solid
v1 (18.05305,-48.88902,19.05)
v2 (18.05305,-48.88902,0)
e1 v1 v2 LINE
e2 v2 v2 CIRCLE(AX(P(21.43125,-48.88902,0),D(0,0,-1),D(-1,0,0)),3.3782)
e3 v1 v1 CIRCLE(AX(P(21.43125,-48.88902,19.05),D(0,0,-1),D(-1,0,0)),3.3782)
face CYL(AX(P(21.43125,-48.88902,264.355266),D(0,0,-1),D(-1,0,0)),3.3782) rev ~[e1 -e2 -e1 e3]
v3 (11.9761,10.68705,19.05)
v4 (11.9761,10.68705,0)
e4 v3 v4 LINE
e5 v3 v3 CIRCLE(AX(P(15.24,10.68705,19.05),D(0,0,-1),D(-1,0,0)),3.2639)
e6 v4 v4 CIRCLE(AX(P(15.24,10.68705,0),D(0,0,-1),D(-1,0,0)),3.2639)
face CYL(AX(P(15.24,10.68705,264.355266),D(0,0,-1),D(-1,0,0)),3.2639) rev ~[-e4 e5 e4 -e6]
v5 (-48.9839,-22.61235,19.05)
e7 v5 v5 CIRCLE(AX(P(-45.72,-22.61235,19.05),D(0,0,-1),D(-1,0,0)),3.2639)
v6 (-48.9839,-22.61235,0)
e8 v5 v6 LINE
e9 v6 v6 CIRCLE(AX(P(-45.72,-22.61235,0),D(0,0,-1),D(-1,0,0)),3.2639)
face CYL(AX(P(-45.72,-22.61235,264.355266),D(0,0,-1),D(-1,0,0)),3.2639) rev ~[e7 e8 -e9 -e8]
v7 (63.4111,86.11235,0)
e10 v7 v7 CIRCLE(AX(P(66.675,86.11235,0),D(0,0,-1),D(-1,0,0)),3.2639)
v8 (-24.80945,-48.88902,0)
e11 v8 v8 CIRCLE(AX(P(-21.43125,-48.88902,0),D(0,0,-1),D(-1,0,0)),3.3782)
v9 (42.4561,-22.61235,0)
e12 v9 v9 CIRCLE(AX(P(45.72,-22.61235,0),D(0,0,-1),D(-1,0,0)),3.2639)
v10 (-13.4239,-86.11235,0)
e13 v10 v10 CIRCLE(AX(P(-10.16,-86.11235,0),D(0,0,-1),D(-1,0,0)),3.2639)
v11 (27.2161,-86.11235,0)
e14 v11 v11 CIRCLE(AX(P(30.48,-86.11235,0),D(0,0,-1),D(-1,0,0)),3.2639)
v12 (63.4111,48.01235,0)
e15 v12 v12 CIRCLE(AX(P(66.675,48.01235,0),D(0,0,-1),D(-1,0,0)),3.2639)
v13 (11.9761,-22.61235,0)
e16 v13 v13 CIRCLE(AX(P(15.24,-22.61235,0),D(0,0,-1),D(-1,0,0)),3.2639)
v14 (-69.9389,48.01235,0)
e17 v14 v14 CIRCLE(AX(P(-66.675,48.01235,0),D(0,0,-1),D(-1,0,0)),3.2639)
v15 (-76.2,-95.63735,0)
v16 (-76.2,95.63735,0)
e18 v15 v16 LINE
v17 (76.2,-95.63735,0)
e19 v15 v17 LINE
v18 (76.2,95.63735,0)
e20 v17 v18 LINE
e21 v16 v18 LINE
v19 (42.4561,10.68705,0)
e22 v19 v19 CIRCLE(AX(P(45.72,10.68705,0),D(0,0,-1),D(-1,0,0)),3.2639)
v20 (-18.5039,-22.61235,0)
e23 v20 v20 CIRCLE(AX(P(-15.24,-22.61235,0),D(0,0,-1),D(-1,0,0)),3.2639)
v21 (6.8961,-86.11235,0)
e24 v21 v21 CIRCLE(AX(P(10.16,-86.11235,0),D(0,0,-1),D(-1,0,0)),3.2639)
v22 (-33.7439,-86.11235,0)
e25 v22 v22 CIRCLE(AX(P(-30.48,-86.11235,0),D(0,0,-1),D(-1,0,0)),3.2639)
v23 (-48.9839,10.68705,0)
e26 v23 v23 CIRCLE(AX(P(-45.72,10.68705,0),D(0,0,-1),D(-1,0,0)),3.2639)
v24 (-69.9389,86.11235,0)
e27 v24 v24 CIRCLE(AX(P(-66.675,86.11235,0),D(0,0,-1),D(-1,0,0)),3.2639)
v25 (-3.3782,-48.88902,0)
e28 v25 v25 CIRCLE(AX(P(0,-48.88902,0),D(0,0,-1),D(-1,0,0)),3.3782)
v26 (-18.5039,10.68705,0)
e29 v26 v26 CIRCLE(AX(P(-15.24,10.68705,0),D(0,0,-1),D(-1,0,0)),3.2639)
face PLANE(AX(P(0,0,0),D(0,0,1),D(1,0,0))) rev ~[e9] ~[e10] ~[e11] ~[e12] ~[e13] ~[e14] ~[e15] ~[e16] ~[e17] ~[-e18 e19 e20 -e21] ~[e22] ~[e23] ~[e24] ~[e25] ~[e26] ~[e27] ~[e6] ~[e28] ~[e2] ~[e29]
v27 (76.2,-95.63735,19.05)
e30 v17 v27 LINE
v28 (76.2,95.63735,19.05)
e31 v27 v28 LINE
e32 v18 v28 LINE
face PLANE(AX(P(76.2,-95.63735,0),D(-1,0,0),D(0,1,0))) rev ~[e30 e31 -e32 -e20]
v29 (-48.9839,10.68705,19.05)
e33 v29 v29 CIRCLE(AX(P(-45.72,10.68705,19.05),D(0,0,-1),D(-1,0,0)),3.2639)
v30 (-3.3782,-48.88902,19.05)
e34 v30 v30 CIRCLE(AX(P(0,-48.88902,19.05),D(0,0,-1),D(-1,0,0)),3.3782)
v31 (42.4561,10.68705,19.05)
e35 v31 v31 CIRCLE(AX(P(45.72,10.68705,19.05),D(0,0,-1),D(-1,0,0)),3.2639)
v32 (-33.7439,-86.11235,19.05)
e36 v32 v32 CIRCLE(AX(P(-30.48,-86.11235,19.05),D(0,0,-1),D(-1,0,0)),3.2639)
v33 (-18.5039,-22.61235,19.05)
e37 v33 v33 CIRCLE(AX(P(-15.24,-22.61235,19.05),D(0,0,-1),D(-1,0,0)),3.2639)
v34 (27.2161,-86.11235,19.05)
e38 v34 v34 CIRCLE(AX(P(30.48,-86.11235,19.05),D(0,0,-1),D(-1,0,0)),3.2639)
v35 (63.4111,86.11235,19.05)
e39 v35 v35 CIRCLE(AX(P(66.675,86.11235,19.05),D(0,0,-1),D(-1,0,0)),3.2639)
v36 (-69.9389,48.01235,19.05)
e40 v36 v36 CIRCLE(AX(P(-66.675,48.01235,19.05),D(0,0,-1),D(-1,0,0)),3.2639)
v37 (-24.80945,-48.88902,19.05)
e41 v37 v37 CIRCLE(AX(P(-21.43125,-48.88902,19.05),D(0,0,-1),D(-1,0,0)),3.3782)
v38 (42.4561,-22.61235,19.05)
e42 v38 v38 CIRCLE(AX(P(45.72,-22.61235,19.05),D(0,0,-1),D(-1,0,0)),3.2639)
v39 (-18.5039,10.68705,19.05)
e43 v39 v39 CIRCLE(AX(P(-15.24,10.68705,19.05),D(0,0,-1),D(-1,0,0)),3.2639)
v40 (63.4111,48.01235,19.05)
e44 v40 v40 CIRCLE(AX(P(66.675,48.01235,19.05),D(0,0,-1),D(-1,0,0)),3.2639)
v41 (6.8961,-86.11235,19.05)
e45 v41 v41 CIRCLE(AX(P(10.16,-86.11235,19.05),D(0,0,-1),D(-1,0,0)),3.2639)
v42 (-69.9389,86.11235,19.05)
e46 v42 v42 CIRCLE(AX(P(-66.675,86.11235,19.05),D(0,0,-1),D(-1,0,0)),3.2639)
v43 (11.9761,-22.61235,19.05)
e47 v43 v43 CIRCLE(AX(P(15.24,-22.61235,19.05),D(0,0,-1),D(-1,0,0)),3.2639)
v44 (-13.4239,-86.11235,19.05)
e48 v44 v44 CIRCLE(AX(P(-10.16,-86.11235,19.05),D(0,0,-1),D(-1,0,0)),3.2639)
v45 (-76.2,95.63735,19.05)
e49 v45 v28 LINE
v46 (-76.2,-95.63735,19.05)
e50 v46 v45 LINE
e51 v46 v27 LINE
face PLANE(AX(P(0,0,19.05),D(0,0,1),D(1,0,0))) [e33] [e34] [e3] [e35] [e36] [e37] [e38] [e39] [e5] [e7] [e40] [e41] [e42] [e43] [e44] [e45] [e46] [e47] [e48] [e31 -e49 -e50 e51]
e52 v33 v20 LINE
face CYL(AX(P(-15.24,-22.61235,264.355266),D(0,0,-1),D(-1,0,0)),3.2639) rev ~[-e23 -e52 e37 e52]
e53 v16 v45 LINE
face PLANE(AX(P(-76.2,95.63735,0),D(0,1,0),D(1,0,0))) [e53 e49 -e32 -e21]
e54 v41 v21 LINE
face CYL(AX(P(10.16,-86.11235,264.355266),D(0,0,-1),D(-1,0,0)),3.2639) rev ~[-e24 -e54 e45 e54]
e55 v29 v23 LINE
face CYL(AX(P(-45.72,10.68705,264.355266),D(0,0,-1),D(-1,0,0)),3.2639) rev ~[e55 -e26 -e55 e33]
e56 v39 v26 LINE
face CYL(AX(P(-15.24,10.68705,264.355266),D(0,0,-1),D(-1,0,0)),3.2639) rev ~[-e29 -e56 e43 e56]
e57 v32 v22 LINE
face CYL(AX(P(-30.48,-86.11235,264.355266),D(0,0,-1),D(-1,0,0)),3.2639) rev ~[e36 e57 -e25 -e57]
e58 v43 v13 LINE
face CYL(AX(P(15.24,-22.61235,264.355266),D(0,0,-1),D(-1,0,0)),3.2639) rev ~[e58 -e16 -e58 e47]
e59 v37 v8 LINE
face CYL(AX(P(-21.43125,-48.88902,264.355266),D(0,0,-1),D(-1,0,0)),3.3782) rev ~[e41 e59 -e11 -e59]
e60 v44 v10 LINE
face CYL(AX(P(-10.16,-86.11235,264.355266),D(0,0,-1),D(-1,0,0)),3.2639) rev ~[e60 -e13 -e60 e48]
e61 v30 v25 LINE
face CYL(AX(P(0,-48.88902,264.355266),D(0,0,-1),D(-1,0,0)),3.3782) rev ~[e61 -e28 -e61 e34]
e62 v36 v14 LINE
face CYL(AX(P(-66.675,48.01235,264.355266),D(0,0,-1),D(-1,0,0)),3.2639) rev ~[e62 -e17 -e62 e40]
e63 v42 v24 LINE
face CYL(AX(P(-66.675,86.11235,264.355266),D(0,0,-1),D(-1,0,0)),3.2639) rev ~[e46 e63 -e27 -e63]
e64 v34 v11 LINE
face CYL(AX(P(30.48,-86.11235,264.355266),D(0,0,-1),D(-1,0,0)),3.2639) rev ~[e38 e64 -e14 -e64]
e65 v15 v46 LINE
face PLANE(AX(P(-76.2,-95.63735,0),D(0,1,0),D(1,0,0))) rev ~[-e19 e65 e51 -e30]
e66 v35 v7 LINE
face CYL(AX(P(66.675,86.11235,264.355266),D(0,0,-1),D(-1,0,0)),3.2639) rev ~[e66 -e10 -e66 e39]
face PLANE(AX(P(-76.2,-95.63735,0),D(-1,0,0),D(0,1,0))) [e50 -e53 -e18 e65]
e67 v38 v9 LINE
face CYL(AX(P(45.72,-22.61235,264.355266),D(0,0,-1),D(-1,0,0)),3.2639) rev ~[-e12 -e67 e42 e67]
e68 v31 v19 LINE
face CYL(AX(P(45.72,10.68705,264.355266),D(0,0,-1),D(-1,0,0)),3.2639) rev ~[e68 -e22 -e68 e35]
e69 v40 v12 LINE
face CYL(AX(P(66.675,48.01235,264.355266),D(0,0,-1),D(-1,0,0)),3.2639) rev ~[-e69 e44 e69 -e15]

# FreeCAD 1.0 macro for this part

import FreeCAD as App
import Part
import Sketcher
from FreeCAD import Vector
Q = App.Units.Quantity

doc = App.newDocument("Part")
body = doc.addObject("PartDesign::Body", "Body")

# Sketch on XY plane
sketch1 = body.newObject("Sketcher::SketchObject", "Sketch")
sketch1.AttachmentSupport = (doc.getObject("XY_Plane"), [""])
sketch1.MapMode = "FlatFace"
sketch1.addGeometry([
    Part.LineSegment(Vector(-76, 96, 0), Vector(-76, -96, 0)),
    Part.LineSegment(Vector(-76, -96, 0), Vector(76, -96, 0)),
    Part.LineSegment(Vector(76, -96, 0), Vector(76, 96, 0)),
    Part.LineSegment(Vector(76, 96, 0), Vector(-76, 96, 0)),
], False)
sketch1.addConstraint([
    Sketcher.Constraint("Coincident", 0, 2, 1, 1),
    Sketcher.Constraint("Coincident", 1, 2, 2, 1),
    Sketcher.Constraint("Coincident", 2, 2, 3, 1),
    Sketcher.Constraint("Coincident", 3, 2, 0, 1),
    Sketcher.Constraint("Vertical", 0),
    Sketcher.Constraint("Horizontal", 1),
    Sketcher.Constraint("Vertical", 2),
    Sketcher.Constraint("Horizontal", 3),
    Sketcher.Constraint("Symmetric", 0, 2, 2, 2, -1, 1),
    Sketcher.Constraint("DistanceX", 1, 1, 1, 2, Q("6 in")),
    Sketcher.Constraint("DistanceY", 0, 2, 0, 1, Q("7.5305 in")),
])
pad1 = body.newObject("PartDesign::Pad", "Pad")
pad1.Profile = sketch1
pad1.Length = Q("0.75 in")

# Sketch on XY plane
sketch2 = body.newObject("Sketcher::SketchObject", "Sketch001")
sketch2.AttachmentSupport = (doc.getObject("XY_Plane"), [""])
sketch2.MapMode = "FlatFace"
sketch2.AttachmentOffset = App.Placement(Vector(0, 0, 0.75 * 25.4), App.Rotation())
sketch2.addGeometry([
    Part.Circle(Vector(-30.5, -86.1, 0), Vector(0, 0, 1), 3.3),  # 0
    Part.Circle(Vector(-10.2, -86.1, 0), Vector(0, 0, 1), 3.3),  # 1
    Part.Circle(Vector(10.2, -86.1, 0), Vector(0, 0, 1), 3.3),  # 2
    Part.Circle(Vector(30.5, -86.1, 0), Vector(0, 0, 1), 3.3),  # 3
    Part.Circle(Vector(-66.7, 48, 0), Vector(0, 0, 1), 3.3),  # 4
    Part.Circle(Vector(-66.7, 86.1, 0), Vector(0, 0, 1), 3.3),  # 5
    Part.Circle(Vector(66.7, 86.1, 0), Vector(0, 0, 1), 3.3),  # 6
    Part.Circle(Vector(66.7, 48, 0), Vector(0, 0, 1), 3.3),  # 7
    Part.Circle(Vector(-45.7, 10.7, 0), Vector(0, 0, 1), 3.3),  # 8
    Part.Circle(Vector(-45.7, -22.6, 0), Vector(0, 0, 1), 3.3),  # 9
    Part.Circle(Vector(-15.2, -22.6, 0), Vector(0, 0, 1), 3.3),  # 10
    Part.Circle(Vector(-15.2, 10.7, 0), Vector(0, 0, 1), 3.3),  # 11
    Part.Circle(Vector(15.2, 10.7, 0), Vector(0, 0, 1), 3.3),  # 12
    Part.Circle(Vector(15.2, -22.6, 0), Vector(0, 0, 1), 3.3),  # 13
    Part.Circle(Vector(45.7, -22.6, 0), Vector(0, 0, 1), 3.3),  # 14
    Part.Circle(Vector(45.7, 10.7, 0), Vector(0, 0, 1), 3.3),  # 15
], False)
sketch2.addConstraint([
    Sketcher.Constraint("Equal", 0, 1),
    Sketcher.Constraint("Equal", 1, 2),
    Sketcher.Constraint("Equal", 2, 3),
    Sketcher.Constraint("Equal", 3, 4),
    Sketcher.Constraint("Equal", 4, 5),
    Sketcher.Constraint("Equal", 5, 6),
    Sketcher.Constraint("Equal", 6, 7),
    Sketcher.Constraint("Equal", 7, 8),
    Sketcher.Constraint("Equal", 8, 9),
    Sketcher.Constraint("Equal", 9, 10),
    Sketcher.Constraint("Equal", 10, 11),
    Sketcher.Constraint("Equal", 11, 12),
    Sketcher.Constraint("Equal", 12, 13),
    Sketcher.Constraint("Equal", 13, 14),
    Sketcher.Constraint("Equal", 14, 15),
    Sketcher.Constraint("Symmetric", 1, 3, 2, 3, -2),
    Sketcher.Constraint("Symmetric", 0, 3, 3, 3, -2),
    Sketcher.Constraint("Symmetric", 5, 3, 6, 3, -2),
    Sketcher.Constraint("Symmetric", 4, 3, 7, 3, -2),
    Sketcher.Constraint("Symmetric", 11, 3, 12, 3, -2),
    Sketcher.Constraint("Symmetric", 10, 3, 13, 3, -2),
    Sketcher.Constraint("Symmetric", 9, 3, 14, 3, -2),
    Sketcher.Constraint("Symmetric", 8, 3, 15, 3, -2),
    Sketcher.Constraint("Horizontal", 0, 3, 1, 3),
    Sketcher.Constraint("Horizontal", 9, 3, 10, 3),
    Sketcher.Constraint("Horizontal", 8, 3, 11, 3),
    Sketcher.Constraint("Vertical", 4, 3, 5, 3),
    Sketcher.Constraint("Vertical", 8, 3, 9, 3),
    Sketcher.Constraint("Vertical", 10, 3, 11, 3),
    Sketcher.Constraint("Diameter", 0, Q("0.257 in")),
    Sketcher.Constraint("DistanceX", 10, 3, 2, 3, Q("1 in")),
    Sketcher.Constraint("DistanceX", 0, 3, -1, 1, Q("1.2 in")),
    Sketcher.Constraint("DistanceX", 1, 3, -1, 1, Q("0.4 in")),
    Sketcher.Constraint("DistanceX", 8, 3, -1, 1, Q("1.8 in")),
    Sketcher.Constraint("DistanceY", 4, 3, 5, 3, Q("1.5 in")),
    Sketcher.Constraint("DistanceY", 0, 3, 9, 3, Q("2.5 in")),
    Sketcher.Constraint("DistanceX", 5, 3, 6, 3, Q("5.25 in")),
    Sketcher.Constraint("DistanceY", 0, 3, 8, 3, Q("3.811 in")),
    Sketcher.Constraint("DistanceY", 0, 3, 4, 3, Q("5.2805 in")),
    Sketcher.Constraint("DistanceY", 0, 3, -1, 1, Q("86.11235 mm")),
])
doc.recompute()
hole = body.newObject("PartDesign::Hole", "Hole")
hole.Profile = sketch2
hole.ThreadType = "None"
hole.Diameter = Q("0.257 in")
hole.DepthType = "ThroughAll"

# Sketch on XY plane
sketch3 = body.newObject("Sketcher::SketchObject", "Sketch002")
sketch3.AttachmentSupport = (doc.getObject("XY_Plane"), [""])
sketch3.MapMode = "FlatFace"
sketch3.AttachmentOffset = App.Placement(Vector(0, 0, 0.75 * 25.4), App.Rotation())
sketch3.addGeometry([
    Part.Circle(Vector(0, -48.9, 0), Vector(0, 0, 1), 3.4),
    Part.Circle(Vector(-21.4, -48.9, 0), Vector(0, 0, 1), 3.4),
    Part.Circle(Vector(21.4, -48.9, 0), Vector(0, 0, 1), 3.4),
], False)
sketch3.addConstraint([
    Sketcher.Constraint("Equal", 0, 1),
    Sketcher.Constraint("Equal", 1, 2),
    Sketcher.Constraint("Symmetric", 1, 3, 2, 3, -2),
    Sketcher.Constraint("PointOnObject", 0, 3, -2),
    Sketcher.Constraint("Horizontal", 0, 3, 1, 3),
    Sketcher.Constraint("Diameter", 0, Q("0.266 in")),
    Sketcher.Constraint("DistanceX", 1, 3, -1, 1, Q("0.84375 in")),
    Sketcher.Constraint("DistanceY", 0, 3, -1, 1, Q("48.88902 mm")),
])
doc.recompute()
hole2 = body.newObject("PartDesign::Hole", "Hole001")
hole2.Profile = sketch3
hole2.ThreadType = "None"
hole2.Diameter = Q("0.266 in")
hole2.DepthType = "ThroughAll"

doc.recompute()
